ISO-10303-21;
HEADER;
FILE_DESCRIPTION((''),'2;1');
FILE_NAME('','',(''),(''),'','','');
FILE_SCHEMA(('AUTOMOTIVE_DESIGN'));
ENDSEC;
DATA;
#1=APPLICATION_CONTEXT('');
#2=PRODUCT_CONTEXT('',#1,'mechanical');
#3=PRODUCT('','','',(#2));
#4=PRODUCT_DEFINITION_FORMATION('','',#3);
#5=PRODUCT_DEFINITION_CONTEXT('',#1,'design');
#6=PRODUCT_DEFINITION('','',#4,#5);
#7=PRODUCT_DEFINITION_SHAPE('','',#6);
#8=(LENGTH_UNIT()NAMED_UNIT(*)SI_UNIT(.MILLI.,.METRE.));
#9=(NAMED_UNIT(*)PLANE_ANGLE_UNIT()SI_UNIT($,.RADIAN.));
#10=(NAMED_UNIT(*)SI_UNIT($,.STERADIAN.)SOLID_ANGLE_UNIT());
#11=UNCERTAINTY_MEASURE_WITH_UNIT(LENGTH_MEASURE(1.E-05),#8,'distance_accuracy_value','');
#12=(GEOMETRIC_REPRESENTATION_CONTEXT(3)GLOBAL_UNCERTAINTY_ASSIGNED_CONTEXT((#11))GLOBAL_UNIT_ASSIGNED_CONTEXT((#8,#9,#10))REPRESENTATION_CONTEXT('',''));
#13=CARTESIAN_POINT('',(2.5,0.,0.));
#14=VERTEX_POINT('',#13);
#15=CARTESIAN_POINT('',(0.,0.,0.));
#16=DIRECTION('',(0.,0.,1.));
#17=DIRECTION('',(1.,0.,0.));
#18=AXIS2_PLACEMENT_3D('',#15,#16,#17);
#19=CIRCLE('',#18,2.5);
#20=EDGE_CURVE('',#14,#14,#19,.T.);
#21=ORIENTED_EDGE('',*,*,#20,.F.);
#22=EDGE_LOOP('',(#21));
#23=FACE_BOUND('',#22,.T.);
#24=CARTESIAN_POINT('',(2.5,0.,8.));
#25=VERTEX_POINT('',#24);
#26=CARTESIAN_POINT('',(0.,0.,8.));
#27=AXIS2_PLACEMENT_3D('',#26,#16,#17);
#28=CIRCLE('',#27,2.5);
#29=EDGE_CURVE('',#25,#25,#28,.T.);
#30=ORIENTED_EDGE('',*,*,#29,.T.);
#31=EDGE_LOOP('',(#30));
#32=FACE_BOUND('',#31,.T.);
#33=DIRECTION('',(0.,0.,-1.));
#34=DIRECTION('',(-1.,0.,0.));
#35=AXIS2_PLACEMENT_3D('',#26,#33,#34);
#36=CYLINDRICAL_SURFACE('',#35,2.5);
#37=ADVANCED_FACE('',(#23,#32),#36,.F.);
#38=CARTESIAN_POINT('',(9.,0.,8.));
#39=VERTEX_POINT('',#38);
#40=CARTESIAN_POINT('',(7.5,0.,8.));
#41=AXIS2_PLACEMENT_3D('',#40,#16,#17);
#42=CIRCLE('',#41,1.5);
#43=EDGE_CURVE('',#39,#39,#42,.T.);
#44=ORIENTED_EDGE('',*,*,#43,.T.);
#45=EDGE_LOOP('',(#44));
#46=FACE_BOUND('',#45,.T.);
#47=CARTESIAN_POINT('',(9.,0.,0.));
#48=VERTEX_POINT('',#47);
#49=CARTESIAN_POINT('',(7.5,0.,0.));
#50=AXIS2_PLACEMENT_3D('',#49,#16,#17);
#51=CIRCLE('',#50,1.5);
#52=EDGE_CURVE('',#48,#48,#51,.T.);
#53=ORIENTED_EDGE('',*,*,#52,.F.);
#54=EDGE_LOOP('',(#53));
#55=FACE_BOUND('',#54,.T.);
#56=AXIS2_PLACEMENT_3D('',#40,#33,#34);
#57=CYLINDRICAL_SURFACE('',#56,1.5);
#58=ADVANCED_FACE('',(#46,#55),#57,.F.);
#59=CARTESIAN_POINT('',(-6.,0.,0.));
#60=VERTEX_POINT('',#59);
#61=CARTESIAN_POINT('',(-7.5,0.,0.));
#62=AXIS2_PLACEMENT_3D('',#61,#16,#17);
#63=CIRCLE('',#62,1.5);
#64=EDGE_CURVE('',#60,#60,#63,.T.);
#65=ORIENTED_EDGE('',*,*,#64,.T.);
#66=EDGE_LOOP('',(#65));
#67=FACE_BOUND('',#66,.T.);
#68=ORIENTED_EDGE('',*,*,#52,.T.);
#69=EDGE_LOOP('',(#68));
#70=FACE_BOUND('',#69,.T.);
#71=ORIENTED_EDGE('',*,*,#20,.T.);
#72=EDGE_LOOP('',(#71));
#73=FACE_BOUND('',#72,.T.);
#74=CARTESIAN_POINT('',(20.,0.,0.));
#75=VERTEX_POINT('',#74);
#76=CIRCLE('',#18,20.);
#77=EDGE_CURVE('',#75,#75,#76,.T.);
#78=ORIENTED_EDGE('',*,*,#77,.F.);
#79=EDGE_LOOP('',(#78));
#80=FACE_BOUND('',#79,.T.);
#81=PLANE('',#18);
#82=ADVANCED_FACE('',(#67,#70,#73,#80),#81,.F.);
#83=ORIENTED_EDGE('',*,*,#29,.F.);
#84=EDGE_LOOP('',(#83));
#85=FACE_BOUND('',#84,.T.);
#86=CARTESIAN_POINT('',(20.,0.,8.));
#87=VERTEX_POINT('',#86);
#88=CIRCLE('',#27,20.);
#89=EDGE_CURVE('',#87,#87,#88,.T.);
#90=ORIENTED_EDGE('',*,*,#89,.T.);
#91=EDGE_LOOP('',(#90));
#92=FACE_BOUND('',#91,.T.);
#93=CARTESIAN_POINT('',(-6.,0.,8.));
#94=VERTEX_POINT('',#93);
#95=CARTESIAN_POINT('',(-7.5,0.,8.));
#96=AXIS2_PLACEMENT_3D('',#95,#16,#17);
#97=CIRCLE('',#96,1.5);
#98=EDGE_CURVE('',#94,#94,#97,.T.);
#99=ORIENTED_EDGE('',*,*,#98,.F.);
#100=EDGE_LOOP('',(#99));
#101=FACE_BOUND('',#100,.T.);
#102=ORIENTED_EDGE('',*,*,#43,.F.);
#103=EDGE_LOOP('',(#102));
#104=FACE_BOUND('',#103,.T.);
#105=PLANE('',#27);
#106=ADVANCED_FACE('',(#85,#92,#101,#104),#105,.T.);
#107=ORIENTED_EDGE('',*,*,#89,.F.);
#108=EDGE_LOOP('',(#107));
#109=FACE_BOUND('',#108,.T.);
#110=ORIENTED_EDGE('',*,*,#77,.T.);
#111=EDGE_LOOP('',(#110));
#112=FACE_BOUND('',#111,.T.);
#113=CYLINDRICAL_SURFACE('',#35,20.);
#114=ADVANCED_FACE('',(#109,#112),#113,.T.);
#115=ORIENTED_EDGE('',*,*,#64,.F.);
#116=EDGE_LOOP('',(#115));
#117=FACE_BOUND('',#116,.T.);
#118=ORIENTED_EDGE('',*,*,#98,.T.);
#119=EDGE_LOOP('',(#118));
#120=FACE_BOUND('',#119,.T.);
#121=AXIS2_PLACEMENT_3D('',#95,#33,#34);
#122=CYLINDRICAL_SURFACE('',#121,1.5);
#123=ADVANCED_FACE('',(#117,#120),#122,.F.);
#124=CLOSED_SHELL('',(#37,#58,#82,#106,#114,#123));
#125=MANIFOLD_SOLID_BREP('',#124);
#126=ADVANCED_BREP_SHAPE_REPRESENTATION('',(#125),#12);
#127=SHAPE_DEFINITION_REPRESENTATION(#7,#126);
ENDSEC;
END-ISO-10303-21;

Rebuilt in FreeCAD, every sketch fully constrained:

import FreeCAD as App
import Part
import Sketcher
from FreeCAD import Vector

doc = App.newDocument("Part")
body = doc.addObject("PartDesign::Body", "Body")

sketch1 = body.newObject("Sketcher::SketchObject", "Sketch")
sketch1.AttachmentSupport = (doc.getObject("XY_Plane"), [""])
sketch1.MapMode = "FlatFace"
sketch1.addGeometry([
    Part.Circle(Vector(0, 0, 0), Vector(0, 0, 1), 20),
    Part.Circle(Vector(-7.5, 0, 0), Vector(0, 0, 1), 1.5),
    Part.Circle(Vector(0, 0, 0), Vector(0, 0, 1), 2.5),
    Part.Circle(Vector(7.5, 0, 0), Vector(0, 0, 1), 1.5),
], False)
sketch1.addConstraint([
    Sketcher.Constraint("Coincident", 0, 3, -1, 1),
    Sketcher.Constraint("Coincident", 2, 3, -1, 1),
    Sketcher.Constraint("Equal", 1, 3),
    Sketcher.Constraint("Symmetric", 1, 3, 3, 3, -1, 1),
    Sketcher.Constraint("PointOnObject", 1, 3, -1),
    Sketcher.Constraint("Diameter", 0, 40.0),
    Sketcher.Constraint("Diameter", 1, 3.0),
    Sketcher.Constraint("Diameter", 2, 5.0),
    Sketcher.Constraint("DistanceX", 1, 3, 3, 3, 15.0),
])
pad1 = body.newObject("PartDesign::Pad", "Pad")
pad1.Profile = sketch1
pad1.Length = 8

doc.recompute()
